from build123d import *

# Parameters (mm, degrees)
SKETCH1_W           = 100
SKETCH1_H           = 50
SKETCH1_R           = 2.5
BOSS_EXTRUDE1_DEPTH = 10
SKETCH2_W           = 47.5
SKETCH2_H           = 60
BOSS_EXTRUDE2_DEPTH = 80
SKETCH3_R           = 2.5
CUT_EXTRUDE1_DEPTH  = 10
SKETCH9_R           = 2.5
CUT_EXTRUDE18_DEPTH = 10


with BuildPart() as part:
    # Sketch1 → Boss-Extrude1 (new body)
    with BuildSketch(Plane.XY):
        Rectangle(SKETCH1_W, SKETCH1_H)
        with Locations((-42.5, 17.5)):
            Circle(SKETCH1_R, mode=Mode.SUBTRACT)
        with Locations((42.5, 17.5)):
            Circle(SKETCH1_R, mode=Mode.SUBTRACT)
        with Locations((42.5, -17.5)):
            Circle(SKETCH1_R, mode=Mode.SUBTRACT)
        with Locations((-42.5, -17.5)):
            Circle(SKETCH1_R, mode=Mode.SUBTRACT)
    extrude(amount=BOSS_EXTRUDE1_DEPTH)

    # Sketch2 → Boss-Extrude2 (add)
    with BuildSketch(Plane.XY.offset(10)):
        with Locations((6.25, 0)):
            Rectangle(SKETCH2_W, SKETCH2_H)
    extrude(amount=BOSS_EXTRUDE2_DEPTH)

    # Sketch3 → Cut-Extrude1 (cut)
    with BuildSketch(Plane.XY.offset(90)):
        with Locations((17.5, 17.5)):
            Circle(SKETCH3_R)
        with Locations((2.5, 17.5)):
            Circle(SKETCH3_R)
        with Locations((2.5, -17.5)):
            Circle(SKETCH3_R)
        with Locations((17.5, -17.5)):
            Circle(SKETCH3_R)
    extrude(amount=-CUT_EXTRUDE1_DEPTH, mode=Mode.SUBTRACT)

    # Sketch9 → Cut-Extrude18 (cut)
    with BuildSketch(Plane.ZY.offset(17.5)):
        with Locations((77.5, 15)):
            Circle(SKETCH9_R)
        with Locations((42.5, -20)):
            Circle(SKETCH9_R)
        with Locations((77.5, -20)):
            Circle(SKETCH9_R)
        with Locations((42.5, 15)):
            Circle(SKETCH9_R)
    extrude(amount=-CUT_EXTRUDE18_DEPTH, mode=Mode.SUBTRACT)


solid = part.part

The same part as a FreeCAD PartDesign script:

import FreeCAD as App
import Part
import Sketcher

doc = App.newDocument("Part")
body = doc.addObject("PartDesign::Body", "Body")

# Sketch on XY plane
sketch1 = body.newObject("Sketcher::SketchObject", "Sketch")
sketch1.AttachmentSupport = (doc.getObject("XY_Plane"), [""])
sketch1.MapMode = "FlatFace"
sketch1.addGeometry([
    Part.LineSegment(App.Vector(-50, 25, 0), App.Vector(-50, -25, 0)),  # 0
    Part.LineSegment(App.Vector(-50, -25, 0), App.Vector(50, -25, 0)),  # 1
    Part.LineSegment(App.Vector(50, -25, 0), App.Vector(50, 25, 0)),  # 2
    Part.LineSegment(App.Vector(50, 25, 0), App.Vector(-50, 25, 0)),  # 3
    Part.Circle(App.Vector(-42.5, -17.5, 0), App.Vector(0, 0, 1), 2.5),  # 4
    Part.Circle(App.Vector(42.5, -17.5, 0), App.Vector(0, 0, 1), 2.5),  # 5
    Part.Circle(App.Vector(-42.5, 17.5, 0), App.Vector(0, 0, 1), 2.5),  # 6
    Part.Circle(App.Vector(42.5, 17.5, 0), App.Vector(0, 0, 1), 2.5),  # 7
], False)
sketch1.addConstraint([
    Sketcher.Constraint("Coincident", 0, 2, 1, 1),
    Sketcher.Constraint("Coincident", 1, 2, 2, 1),
    Sketcher.Constraint("Coincident", 2, 2, 3, 1),
    Sketcher.Constraint("Coincident", 3, 2, 0, 1),
    Sketcher.Constraint("Vertical", 0),
    Sketcher.Constraint("Horizontal", 1),
    Sketcher.Constraint("Vertical", 2),
    Sketcher.Constraint("Horizontal", 3),
    Sketcher.Constraint("Equal", 4, 5),
    Sketcher.Constraint("Equal", 5, 6),
    Sketcher.Constraint("Equal", 6, 7),
    Sketcher.Constraint("Symmetric", 5, 3, 6, 3, -1, 1),
    Sketcher.Constraint("Symmetric", 4, 3, 7, 3, -1, 1),
    Sketcher.Constraint("Symmetric", 0, 2, 2, 2, -1, 1),
    Sketcher.Constraint("Symmetric", 4, 3, 5, 3, -2),
    Sketcher.Constraint("Diameter", 4, 5.0),
    Sketcher.Constraint("DistanceX", 1, 1, 1, 2, 100.0),
    Sketcher.Constraint("DistanceY", 0, 2, 0, 1, 50.0),
    Sketcher.Constraint("DistanceX", 4, 3, 5, 3, 85.0),
    Sketcher.Constraint("DistanceY", 4, 3, 6, 3, 35.0),
])
pad1 = body.newObject("PartDesign::Pad", "Pad")
pad1.Profile = sketch1
pad1.Length = 10

# Sketch on XY plane
sketch2 = body.newObject("Sketcher::SketchObject", "Sketch001")
sketch2.AttachmentSupport = (doc.getObject("XY_Plane"), [""])
sketch2.MapMode = "FlatFace"
sketch2.AttachmentOffset = App.Placement(App.Vector(0, 0, 10), App.Rotation())
sketch2.addGeometry([
    Part.LineSegment(App.Vector(-17.5, 30, 0), App.Vector(-17.5, -30, 0)),
    Part.LineSegment(App.Vector(-17.5, -30, 0), App.Vector(30, -30, 0)),
    Part.LineSegment(App.Vector(30, -30, 0), App.Vector(30, 30, 0)),
    Part.LineSegment(App.Vector(30, 30, 0), App.Vector(-17.5, 30, 0)),
], False)
sketch2.addConstraint([
    Sketcher.Constraint("Coincident", 0, 2, 1, 1),
    Sketcher.Constraint("Coincident", 1, 2, 2, 1),
    Sketcher.Constraint("Coincident", 2, 2, 3, 1),
    Sketcher.Constraint("Coincident", 3, 2, 0, 1),
    Sketcher.Constraint("Vertical", 0),
    Sketcher.Constraint("Horizontal", 1),
    Sketcher.Constraint("Vertical", 2),
    Sketcher.Constraint("Horizontal", 3),
    Sketcher.Constraint("DistanceY", 0, 2, 0, 1, 60.0),
    Sketcher.Constraint("DistanceX", 1, 1, 1, 2, 47.5),
    Sketcher.Constraint("DistanceY", 0, 2, -1, 1, 30.0),
    Sketcher.Constraint("DistanceX", -1, 1, 1, 2, 30.0),
])
pad2 = body.newObject("PartDesign::Pad", "Pad001")
pad2.Profile = sketch2
pad2.Length = 80

# Sketch on XY plane
sketch3 = body.newObject("Sketcher::SketchObject", "Sketch002")
sketch3.AttachmentSupport = (doc.getObject("XY_Plane"), [""])
sketch3.MapMode = "FlatFace"
sketch3.AttachmentOffset = App.Placement(App.Vector(0, 0, 90), App.Rotation())
sketch3.addGeometry([
    Part.Circle(App.Vector(17.5, 17.5, 0), App.Vector(0, 0, 1), 2.5),
    Part.Circle(App.Vector(2.5, 17.5, 0), App.Vector(0, 0, 1), 2.5),
    Part.Circle(App.Vector(2.5, -17.5, 0), App.Vector(0, 0, 1), 2.5),
    Part.Circle(App.Vector(17.5, -17.5, 0), App.Vector(0, 0, 1), 2.5),
], False)
sketch3.addConstraint([
    Sketcher.Constraint("Equal", 0, 1),
    Sketcher.Constraint("Equal", 1, 2),
    Sketcher.Constraint("Equal", 2, 3),
    Sketcher.Constraint("Symmetric", 1, 3, 2, 3, -1),
    Sketcher.Constraint("Symmetric", 0, 3, 3, 3, -1),
    Sketcher.Constraint("Horizontal", 0, 3, 1, 3),
    Sketcher.Constraint("Diameter", 0, 5.0),
    Sketcher.Constraint("DistanceX", 1, 3, 0, 3, 15.0),
    Sketcher.Constraint("DistanceY", 2, 3, 1, 3, 35.0),
    Sketcher.Constraint("DistanceX", -1, 1, 0, 3, 17.5),
])
pocket1 = body.newObject("PartDesign::Pocket", "Pocket")
pocket1.Profile = sketch3
pocket1.Length = 10

# Sketch on YZ plane
sketch4 = body.newObject("Sketcher::SketchObject", "Sketch003")
sketch4.AttachmentSupport = (doc.getObject("YZ_Plane"), [""])
sketch4.MapMode = "FlatFace"
sketch4.AttachmentOffset = App.Placement(App.Vector(0, 0, -17.5), App.Rotation())
sketch4.addGeometry([
    Part.Circle(App.Vector(15, 77.5, 0), App.Vector(0, 0, 1), 2.5),
    Part.Circle(App.Vector(-20, 42.5, 0), App.Vector(0, 0, 1), 2.5),
    Part.Circle(App.Vector(-20, 77.5, 0), App.Vector(0, 0, 1), 2.5),
    Part.Circle(App.Vector(15, 42.5, 0), App.Vector(0, 0, 1), 2.5),
], False)
sketch4.addConstraint([
    Sketcher.Constraint("Equal", 0, 1),
    Sketcher.Constraint("Equal", 1, 2),
    Sketcher.Constraint("Equal", 2, 3),
    Sketcher.Constraint("Horizontal", 0, 3, 2, 3),
    Sketcher.Constraint("Horizontal", 1, 3, 3, 3),
    Sketcher.Constraint("Vertical", 1, 3, 2, 3),
    Sketcher.Constraint("Vertical", 0, 3, 3, 3),
    Sketcher.Constraint("Diameter", 0, 5.0),
    Sketcher.Constraint("DistanceX", -1, 1, 0, 3, 15.0),
    Sketcher.Constraint("DistanceX", 1, 3, -1, 1, 20.0),
    Sketcher.Constraint("DistanceY", 1, 3, 0, 3, 35.0),
    Sketcher.Constraint("DistanceY", -1, 1, 0, 3, 77.5),
])
pocket2 = body.newObject("PartDesign::Pocket", "Pocket001")
pocket2.Profile = sketch4
pocket2.Length = 10
pocket2.Reversed = True

doc.recompute()
